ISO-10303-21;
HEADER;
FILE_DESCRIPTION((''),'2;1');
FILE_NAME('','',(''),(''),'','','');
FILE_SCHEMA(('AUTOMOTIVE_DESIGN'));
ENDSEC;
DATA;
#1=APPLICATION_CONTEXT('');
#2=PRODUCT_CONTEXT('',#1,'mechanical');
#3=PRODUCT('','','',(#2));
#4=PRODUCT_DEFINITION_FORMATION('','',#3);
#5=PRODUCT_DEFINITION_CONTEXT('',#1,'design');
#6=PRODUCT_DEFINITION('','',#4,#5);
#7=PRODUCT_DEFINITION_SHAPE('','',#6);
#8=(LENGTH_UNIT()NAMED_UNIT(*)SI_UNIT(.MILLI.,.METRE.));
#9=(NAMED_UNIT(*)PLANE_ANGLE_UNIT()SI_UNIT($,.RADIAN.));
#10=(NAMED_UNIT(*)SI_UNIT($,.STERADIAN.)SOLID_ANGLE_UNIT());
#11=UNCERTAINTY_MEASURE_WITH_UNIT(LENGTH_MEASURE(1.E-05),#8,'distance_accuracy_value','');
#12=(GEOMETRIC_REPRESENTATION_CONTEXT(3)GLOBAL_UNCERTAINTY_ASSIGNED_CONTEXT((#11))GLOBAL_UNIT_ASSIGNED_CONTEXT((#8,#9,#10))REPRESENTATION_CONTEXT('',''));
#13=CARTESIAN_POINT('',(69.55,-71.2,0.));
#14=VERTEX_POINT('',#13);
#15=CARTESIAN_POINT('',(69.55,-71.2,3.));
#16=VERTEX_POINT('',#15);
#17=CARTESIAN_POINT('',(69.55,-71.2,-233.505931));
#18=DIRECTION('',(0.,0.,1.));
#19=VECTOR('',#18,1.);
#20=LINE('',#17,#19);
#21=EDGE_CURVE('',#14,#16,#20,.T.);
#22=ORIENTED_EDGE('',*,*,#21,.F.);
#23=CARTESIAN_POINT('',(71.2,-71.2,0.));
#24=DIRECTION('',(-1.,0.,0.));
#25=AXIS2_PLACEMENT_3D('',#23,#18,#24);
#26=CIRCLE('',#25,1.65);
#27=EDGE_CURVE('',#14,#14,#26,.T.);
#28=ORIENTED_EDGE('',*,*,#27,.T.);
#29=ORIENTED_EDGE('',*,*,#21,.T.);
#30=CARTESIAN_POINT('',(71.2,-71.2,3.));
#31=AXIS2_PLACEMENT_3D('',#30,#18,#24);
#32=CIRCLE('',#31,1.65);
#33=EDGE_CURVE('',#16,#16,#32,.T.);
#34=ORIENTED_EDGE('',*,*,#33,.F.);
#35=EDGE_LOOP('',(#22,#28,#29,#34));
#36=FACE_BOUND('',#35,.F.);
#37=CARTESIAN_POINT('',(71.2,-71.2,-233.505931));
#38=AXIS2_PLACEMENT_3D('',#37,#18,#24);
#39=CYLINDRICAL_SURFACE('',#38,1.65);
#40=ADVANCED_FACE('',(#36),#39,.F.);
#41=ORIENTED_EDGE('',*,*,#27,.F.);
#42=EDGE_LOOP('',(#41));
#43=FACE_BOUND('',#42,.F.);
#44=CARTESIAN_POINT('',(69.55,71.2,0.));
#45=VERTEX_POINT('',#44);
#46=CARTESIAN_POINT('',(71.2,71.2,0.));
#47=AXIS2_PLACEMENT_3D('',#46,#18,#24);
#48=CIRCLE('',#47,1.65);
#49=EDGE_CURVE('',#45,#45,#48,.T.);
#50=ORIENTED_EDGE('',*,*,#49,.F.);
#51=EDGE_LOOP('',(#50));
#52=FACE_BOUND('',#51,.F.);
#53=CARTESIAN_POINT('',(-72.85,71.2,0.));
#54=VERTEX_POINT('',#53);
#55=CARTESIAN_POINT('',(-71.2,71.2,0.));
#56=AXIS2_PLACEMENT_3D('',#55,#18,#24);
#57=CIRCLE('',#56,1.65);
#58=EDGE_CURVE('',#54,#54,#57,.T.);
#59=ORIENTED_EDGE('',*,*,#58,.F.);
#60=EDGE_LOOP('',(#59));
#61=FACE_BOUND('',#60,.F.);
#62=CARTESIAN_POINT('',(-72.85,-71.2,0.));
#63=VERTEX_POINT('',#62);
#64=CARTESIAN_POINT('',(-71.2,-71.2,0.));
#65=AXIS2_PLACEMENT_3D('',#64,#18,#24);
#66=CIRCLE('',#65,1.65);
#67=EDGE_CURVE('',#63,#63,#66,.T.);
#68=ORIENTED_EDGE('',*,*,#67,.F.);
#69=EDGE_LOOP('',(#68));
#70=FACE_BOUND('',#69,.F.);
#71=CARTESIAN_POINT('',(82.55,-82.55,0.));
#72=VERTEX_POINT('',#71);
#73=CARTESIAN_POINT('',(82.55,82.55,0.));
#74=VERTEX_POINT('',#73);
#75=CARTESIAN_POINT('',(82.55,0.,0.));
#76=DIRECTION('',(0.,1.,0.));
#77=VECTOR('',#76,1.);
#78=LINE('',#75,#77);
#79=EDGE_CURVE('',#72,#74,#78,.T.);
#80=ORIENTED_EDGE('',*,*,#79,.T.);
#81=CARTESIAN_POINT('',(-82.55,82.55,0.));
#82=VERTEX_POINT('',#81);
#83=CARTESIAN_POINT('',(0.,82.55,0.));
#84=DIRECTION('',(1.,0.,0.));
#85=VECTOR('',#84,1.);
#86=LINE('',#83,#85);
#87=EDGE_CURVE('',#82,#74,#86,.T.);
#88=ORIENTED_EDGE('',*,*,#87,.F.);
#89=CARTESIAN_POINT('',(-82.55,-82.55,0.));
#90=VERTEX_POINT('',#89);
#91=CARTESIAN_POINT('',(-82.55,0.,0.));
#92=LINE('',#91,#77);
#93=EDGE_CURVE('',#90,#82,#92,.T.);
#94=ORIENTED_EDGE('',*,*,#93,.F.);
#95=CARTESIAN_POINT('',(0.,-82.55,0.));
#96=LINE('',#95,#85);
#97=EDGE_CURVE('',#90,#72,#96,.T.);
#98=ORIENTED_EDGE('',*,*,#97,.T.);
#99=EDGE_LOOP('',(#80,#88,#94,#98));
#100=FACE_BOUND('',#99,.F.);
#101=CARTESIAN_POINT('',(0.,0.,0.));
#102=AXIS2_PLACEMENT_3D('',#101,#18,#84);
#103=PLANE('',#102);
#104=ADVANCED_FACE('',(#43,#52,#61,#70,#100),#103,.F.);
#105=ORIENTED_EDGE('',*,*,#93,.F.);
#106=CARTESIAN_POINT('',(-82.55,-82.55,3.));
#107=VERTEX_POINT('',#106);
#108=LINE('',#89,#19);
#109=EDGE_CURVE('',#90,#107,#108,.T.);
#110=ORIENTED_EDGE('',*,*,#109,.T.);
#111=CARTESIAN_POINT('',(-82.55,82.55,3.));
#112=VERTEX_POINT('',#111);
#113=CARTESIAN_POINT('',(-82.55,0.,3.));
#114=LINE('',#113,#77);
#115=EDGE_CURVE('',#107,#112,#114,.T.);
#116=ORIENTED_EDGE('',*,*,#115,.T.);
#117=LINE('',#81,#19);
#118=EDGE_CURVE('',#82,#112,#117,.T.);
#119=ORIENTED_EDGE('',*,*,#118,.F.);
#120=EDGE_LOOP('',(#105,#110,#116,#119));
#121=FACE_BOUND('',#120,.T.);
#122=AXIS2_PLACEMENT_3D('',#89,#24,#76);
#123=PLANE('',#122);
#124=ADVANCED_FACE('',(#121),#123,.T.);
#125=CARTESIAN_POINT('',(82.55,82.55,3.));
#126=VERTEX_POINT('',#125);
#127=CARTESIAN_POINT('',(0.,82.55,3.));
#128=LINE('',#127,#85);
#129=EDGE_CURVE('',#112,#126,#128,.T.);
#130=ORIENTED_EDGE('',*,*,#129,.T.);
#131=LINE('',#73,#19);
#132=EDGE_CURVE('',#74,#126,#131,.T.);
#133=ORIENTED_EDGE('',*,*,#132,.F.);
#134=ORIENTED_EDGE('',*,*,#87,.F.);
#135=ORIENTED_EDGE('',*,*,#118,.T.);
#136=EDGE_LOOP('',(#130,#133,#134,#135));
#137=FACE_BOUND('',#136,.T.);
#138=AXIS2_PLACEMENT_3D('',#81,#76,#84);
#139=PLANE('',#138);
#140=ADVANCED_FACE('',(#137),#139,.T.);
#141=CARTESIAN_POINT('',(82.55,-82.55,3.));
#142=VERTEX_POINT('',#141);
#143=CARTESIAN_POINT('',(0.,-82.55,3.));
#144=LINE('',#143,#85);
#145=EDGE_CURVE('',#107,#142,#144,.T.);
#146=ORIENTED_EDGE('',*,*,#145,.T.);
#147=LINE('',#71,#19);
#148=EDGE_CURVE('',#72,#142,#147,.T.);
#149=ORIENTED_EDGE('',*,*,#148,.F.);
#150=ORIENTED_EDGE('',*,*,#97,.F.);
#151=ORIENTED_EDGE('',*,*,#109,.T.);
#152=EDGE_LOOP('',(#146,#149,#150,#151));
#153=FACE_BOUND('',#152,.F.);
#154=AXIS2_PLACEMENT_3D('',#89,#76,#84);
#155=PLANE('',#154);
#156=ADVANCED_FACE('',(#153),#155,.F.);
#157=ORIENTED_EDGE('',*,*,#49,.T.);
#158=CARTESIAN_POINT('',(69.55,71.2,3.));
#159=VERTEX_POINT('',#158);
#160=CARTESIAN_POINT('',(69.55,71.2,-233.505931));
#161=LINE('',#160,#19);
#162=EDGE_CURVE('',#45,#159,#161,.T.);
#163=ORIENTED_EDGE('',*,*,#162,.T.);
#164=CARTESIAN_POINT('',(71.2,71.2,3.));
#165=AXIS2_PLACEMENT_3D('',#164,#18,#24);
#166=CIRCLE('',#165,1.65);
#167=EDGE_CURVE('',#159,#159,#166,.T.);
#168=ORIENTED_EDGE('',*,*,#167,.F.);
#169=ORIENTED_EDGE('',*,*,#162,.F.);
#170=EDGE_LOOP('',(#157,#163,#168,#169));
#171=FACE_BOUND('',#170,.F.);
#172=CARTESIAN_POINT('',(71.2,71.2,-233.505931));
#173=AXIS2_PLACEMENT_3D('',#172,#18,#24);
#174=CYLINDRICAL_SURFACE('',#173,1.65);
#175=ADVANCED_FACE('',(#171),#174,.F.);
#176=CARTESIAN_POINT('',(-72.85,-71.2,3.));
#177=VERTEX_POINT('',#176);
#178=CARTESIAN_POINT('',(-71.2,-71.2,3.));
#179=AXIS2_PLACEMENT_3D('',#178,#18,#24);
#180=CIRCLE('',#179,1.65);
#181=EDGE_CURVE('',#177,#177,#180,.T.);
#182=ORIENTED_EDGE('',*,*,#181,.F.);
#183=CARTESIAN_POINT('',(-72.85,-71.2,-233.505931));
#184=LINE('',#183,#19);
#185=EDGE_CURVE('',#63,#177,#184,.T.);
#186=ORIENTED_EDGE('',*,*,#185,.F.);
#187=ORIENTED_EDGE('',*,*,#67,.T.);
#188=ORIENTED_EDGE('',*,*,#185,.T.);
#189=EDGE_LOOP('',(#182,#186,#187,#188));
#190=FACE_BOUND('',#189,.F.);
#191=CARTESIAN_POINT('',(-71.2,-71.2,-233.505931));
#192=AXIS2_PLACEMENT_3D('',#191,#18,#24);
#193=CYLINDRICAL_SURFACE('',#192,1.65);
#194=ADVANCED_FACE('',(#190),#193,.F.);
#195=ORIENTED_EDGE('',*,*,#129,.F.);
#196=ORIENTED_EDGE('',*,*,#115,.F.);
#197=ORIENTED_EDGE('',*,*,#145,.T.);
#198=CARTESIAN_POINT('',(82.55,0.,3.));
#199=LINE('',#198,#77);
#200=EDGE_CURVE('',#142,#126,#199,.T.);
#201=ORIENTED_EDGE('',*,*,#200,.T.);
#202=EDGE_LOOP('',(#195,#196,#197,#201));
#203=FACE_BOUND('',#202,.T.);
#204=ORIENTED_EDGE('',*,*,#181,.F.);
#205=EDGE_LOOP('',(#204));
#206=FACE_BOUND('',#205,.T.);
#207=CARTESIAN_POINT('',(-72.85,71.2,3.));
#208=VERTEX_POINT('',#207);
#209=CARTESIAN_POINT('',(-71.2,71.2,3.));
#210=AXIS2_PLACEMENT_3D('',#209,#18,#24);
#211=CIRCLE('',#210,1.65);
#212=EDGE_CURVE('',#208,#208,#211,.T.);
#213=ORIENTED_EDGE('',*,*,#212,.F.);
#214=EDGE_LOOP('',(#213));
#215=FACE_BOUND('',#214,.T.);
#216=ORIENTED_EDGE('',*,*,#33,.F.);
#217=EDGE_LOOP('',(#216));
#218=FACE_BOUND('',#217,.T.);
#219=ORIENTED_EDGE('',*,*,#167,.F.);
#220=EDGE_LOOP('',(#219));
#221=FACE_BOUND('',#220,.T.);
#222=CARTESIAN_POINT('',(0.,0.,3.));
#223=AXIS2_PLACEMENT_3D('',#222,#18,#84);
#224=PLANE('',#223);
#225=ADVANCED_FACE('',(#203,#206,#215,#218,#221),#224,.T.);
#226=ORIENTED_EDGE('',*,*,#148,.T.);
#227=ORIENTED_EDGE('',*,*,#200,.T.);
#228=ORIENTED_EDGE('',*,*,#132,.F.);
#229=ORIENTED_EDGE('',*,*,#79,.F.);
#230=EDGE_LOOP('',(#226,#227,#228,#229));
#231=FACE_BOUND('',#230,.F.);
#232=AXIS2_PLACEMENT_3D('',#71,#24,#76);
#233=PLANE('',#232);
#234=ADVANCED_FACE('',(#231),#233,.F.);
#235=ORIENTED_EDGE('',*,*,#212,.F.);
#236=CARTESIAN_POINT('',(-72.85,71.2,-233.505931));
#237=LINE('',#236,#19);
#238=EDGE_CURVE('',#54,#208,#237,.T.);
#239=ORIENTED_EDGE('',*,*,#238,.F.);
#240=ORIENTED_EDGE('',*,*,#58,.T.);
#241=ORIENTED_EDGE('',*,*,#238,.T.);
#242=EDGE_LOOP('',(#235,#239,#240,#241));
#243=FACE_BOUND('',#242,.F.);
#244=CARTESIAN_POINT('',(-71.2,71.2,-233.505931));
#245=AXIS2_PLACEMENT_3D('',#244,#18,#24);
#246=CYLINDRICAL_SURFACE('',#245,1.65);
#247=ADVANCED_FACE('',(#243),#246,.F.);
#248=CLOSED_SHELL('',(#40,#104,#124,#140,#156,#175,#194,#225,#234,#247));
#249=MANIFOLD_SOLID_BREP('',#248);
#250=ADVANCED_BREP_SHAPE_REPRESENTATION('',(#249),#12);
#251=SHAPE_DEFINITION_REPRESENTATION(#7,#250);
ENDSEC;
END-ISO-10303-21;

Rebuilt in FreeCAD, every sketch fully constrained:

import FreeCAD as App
import Part
import Sketcher


def add_polygon(sketch, points):
    """Adds a closed chain of lines whose ends are joined by coincident constraints."""
    first, n = sketch.GeometryCount, len(points)
    for a, b in zip(points, points[1:] + points[:1]):
        sketch.addGeometry(Part.LineSegment(App.Vector(*a, 0), App.Vector(*b, 0)), False)
    for i in range(n):
        sketch.addConstraint(Sketcher.Constraint("Coincident", first + i, 2, first + (i + 1) % n, 1))

doc = App.newDocument("Part")
body = doc.addObject("PartDesign::Body", "Body")

# Sketch on XY plane
sketch1 = doc.addObject("Sketcher::SketchObject", "Sketch")
body.addObject(sketch1)
sketch1.AttachmentSupport = (doc.XY_Plane, [""])
sketch1.MapMode = "FlatFace"
add_polygon(sketch1, [(-83, 83), (-83, -83), (83, -83), (83, 83)])  # lines 0-3
sketch1.addConstraint(Sketcher.Constraint("Vertical", 0))
sketch1.addConstraint(Sketcher.Constraint("Horizontal", 1))
sketch1.addConstraint(Sketcher.Constraint("Vertical", 2))
sketch1.addConstraint(Sketcher.Constraint("Horizontal", 3))
sketch1.addConstraint(Sketcher.Constraint("Symmetric", 0, 2, 2, 2, -1, 1))
sketch1.addConstraint(Sketcher.Constraint("Equal", 3, 0))
sketch1.addConstraint(Sketcher.Constraint("DistanceX", 1, 1, 1, 2, 165.1))
pad1 = doc.addObject("PartDesign::Pad", "Pad")
body.addObject(pad1)
pad1.Profile = sketch1
pad1.Length = 3

# Sketch on XY plane
sketch2 = doc.addObject("Sketcher::SketchObject", "Sketch001")
body.addObject(sketch2)
sketch2.AttachmentSupport = (doc.XY_Plane, [""])
sketch2.MapMode = "FlatFace"
sketch2.addGeometry(Part.Circle(App.Vector(-71.2, 71.2, 0), App.Vector(0, 0, 1), 1.6), False)
sketch2.addGeometry(Part.Circle(App.Vector(71.2, 71.2, 0), App.Vector(0, 0, 1), 1.6), False)
sketch2.addGeometry(Part.Circle(App.Vector(71.2, -71.2, 0), App.Vector(0, 0, 1), 1.6), False)
sketch2.addGeometry(Part.Circle(App.Vector(-71.2, -71.2, 0), App.Vector(0, 0, 1), 1.6), False)
sketch2.addConstraint(Sketcher.Constraint("Equal", 0, 1))
sketch2.addConstraint(Sketcher.Constraint("Equal", 1, 2))
sketch2.addConstraint(Sketcher.Constraint("Equal", 2, 3))
sketch2.addConstraint(Sketcher.Constraint("Symmetric", 0, 3, 2, 3, -1, 1))
sketch2.addConstraint(Sketcher.Constraint("Symmetric", 1, 3, 3, 3, -1, 1))
sketch2.addConstraint(Sketcher.Constraint("Symmetric", 0, 3, 1, 3, -2))
sketch2.addConstraint(Sketcher.Constraint("Diameter", 0, 3.3))
sketch2.addConstraint(Sketcher.Constraint("DistanceX", 0, 3, -1, 1, 71.2))
sketch2.addConstraint(Sketcher.Constraint("DistanceY", -1, 1, 0, 3, 71.2))
doc.recompute()
hole = doc.addObject("PartDesign::Hole", "Hole")
body.addObject(hole)
hole.Profile = sketch2
hole.ThreadType = "None"
hole.Diameter = 3.3
hole.DepthType = "ThroughAll"
hole.Reversed = True

doc.recompute()
